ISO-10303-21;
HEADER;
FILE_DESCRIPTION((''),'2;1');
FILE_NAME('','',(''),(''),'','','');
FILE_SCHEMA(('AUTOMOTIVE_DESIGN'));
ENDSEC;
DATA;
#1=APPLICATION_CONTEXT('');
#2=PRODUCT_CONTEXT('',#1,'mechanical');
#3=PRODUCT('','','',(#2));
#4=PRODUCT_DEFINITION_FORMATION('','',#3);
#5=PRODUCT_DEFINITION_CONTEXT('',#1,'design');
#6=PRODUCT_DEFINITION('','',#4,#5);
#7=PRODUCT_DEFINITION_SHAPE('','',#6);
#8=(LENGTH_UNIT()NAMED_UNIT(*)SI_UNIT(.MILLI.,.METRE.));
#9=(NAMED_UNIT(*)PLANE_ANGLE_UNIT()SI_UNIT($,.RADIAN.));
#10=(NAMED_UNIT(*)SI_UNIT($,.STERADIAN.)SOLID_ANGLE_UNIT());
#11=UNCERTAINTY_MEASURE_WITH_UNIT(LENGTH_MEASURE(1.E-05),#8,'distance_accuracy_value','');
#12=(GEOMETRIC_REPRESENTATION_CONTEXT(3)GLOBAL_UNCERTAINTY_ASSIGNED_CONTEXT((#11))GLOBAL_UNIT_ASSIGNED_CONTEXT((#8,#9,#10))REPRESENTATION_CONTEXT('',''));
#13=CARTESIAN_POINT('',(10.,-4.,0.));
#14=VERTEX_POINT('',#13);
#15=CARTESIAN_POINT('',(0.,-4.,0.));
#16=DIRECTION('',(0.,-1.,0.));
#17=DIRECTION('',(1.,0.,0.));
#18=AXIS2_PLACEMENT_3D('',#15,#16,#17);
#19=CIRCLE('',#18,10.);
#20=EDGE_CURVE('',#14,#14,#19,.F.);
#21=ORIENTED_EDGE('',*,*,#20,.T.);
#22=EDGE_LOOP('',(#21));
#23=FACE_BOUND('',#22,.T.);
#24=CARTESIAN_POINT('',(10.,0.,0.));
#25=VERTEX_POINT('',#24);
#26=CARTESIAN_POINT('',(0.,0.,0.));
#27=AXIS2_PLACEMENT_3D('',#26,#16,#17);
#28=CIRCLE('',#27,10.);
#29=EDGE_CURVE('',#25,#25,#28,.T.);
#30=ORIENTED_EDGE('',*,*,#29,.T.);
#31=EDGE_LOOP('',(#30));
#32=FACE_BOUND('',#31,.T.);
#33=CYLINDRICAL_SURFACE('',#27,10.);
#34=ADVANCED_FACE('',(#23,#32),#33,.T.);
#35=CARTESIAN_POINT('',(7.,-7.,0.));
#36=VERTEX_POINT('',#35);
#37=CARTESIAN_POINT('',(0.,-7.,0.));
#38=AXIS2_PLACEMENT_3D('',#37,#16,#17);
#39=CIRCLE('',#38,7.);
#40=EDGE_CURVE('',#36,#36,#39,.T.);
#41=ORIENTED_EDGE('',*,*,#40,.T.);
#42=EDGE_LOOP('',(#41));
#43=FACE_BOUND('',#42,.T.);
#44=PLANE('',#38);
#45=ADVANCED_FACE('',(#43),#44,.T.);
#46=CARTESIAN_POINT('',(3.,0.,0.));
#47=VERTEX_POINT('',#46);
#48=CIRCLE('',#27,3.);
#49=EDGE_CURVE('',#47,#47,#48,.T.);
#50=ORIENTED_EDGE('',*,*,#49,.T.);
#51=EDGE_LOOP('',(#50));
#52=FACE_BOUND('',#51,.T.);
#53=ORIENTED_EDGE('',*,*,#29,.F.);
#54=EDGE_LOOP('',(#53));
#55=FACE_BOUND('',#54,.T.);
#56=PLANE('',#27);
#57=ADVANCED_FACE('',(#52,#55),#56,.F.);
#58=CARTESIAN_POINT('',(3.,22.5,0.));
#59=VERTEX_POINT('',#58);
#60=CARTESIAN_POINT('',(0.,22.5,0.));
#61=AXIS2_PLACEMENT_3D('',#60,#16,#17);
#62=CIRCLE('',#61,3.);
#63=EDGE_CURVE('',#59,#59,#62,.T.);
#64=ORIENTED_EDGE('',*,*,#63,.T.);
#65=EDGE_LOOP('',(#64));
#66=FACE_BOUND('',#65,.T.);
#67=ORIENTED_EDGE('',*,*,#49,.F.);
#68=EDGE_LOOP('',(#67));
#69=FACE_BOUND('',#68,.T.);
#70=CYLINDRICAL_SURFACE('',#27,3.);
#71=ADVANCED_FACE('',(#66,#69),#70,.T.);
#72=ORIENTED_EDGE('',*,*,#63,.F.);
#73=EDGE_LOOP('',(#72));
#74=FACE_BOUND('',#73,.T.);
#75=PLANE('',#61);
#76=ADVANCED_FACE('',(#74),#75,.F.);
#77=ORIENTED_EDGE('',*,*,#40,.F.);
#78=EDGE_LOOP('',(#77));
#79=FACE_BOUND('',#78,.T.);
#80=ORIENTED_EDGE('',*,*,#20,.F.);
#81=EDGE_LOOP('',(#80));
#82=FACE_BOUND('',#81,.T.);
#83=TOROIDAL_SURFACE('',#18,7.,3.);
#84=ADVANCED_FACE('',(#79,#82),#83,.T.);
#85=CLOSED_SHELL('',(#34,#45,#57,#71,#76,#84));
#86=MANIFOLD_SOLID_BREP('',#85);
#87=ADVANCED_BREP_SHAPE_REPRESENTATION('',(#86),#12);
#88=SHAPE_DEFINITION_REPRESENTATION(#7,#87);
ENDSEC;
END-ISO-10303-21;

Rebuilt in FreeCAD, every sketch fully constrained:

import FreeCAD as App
import Part
import Sketcher


def edges_at(feature, points):
    """Names of the edges that pass closest to the given points."""
    edges = feature.Shape.Edges
    near = lambda p: min(range(len(edges)), key=lambda i: edges[i].distToShape(Part.Vertex(*p))[0])
    return sorted({f"Edge{near(p) + 1}" for p in points})


def add_polygon(sketch, points):
    """Adds a closed chain of lines whose ends are joined by coincident constraints."""
    first, n = sketch.GeometryCount, len(points)
    for a, b in zip(points, points[1:] + points[:1]):
        sketch.addGeometry(Part.LineSegment(App.Vector(*a, 0), App.Vector(*b, 0)), False)
    for i in range(n):
        sketch.addConstraint(Sketcher.Constraint("Coincident", first + i, 2, first + (i + 1) % n, 1))

doc = App.newDocument("Part")
body = doc.addObject("PartDesign::Body", "Body")

# Sketch on XY plane
sketch1 = body.newObject("Sketcher::SketchObject", "Sketch")
sketch1.AttachmentSupport = (doc.getObject("XY_Plane"), [""])
sketch1.MapMode = "FlatFace"
add_polygon(sketch1, [(0, -7), (0, 22.5), (-3, 22.5), (-3, 0), (-10, 0), (-10, -7)])  # lines 0-5
sketch1.addConstraint(Sketcher.Constraint("Vertical", 0))
sketch1.addConstraint(Sketcher.Constraint("Horizontal", 1))
sketch1.addConstraint(Sketcher.Constraint("Vertical", 2))
sketch1.addConstraint(Sketcher.Constraint("Horizontal", 3))
sketch1.addConstraint(Sketcher.Constraint("Vertical", 4))
sketch1.addConstraint(Sketcher.Constraint("Horizontal", 5))
sketch1.addConstraint(Sketcher.Constraint("PointOnObject", 0, 2, -2))
sketch1.addConstraint(Sketcher.Constraint("PointOnObject", 2, 2, -1))
sketch1.addConstraint(Sketcher.Constraint("Equal", 3, 4))
sketch1.addConstraint(Sketcher.Constraint("DistanceX", 1, 2, 1, 1, 3.0))
sketch1.addConstraint(Sketcher.Constraint("DistanceX", 3, 2, 3, 1, 7.0))
sketch1.addConstraint(Sketcher.Constraint("DistanceY", 0, 1, 0, 2, 29.5))
revolution = body.newObject("PartDesign::Revolution", "Revolution")
revolution.Profile = sketch1
revolution.ReferenceAxis = (sketch1, ["V_Axis"])
revolution.Angle = 360
doc.recompute()

fillet = body.newObject("PartDesign::Fillet", "Fillet")
fillet.Base = (revolution, edges_at(revolution, [(10, -7, 0)]))
fillet.Radius = 3

doc.recompute()
